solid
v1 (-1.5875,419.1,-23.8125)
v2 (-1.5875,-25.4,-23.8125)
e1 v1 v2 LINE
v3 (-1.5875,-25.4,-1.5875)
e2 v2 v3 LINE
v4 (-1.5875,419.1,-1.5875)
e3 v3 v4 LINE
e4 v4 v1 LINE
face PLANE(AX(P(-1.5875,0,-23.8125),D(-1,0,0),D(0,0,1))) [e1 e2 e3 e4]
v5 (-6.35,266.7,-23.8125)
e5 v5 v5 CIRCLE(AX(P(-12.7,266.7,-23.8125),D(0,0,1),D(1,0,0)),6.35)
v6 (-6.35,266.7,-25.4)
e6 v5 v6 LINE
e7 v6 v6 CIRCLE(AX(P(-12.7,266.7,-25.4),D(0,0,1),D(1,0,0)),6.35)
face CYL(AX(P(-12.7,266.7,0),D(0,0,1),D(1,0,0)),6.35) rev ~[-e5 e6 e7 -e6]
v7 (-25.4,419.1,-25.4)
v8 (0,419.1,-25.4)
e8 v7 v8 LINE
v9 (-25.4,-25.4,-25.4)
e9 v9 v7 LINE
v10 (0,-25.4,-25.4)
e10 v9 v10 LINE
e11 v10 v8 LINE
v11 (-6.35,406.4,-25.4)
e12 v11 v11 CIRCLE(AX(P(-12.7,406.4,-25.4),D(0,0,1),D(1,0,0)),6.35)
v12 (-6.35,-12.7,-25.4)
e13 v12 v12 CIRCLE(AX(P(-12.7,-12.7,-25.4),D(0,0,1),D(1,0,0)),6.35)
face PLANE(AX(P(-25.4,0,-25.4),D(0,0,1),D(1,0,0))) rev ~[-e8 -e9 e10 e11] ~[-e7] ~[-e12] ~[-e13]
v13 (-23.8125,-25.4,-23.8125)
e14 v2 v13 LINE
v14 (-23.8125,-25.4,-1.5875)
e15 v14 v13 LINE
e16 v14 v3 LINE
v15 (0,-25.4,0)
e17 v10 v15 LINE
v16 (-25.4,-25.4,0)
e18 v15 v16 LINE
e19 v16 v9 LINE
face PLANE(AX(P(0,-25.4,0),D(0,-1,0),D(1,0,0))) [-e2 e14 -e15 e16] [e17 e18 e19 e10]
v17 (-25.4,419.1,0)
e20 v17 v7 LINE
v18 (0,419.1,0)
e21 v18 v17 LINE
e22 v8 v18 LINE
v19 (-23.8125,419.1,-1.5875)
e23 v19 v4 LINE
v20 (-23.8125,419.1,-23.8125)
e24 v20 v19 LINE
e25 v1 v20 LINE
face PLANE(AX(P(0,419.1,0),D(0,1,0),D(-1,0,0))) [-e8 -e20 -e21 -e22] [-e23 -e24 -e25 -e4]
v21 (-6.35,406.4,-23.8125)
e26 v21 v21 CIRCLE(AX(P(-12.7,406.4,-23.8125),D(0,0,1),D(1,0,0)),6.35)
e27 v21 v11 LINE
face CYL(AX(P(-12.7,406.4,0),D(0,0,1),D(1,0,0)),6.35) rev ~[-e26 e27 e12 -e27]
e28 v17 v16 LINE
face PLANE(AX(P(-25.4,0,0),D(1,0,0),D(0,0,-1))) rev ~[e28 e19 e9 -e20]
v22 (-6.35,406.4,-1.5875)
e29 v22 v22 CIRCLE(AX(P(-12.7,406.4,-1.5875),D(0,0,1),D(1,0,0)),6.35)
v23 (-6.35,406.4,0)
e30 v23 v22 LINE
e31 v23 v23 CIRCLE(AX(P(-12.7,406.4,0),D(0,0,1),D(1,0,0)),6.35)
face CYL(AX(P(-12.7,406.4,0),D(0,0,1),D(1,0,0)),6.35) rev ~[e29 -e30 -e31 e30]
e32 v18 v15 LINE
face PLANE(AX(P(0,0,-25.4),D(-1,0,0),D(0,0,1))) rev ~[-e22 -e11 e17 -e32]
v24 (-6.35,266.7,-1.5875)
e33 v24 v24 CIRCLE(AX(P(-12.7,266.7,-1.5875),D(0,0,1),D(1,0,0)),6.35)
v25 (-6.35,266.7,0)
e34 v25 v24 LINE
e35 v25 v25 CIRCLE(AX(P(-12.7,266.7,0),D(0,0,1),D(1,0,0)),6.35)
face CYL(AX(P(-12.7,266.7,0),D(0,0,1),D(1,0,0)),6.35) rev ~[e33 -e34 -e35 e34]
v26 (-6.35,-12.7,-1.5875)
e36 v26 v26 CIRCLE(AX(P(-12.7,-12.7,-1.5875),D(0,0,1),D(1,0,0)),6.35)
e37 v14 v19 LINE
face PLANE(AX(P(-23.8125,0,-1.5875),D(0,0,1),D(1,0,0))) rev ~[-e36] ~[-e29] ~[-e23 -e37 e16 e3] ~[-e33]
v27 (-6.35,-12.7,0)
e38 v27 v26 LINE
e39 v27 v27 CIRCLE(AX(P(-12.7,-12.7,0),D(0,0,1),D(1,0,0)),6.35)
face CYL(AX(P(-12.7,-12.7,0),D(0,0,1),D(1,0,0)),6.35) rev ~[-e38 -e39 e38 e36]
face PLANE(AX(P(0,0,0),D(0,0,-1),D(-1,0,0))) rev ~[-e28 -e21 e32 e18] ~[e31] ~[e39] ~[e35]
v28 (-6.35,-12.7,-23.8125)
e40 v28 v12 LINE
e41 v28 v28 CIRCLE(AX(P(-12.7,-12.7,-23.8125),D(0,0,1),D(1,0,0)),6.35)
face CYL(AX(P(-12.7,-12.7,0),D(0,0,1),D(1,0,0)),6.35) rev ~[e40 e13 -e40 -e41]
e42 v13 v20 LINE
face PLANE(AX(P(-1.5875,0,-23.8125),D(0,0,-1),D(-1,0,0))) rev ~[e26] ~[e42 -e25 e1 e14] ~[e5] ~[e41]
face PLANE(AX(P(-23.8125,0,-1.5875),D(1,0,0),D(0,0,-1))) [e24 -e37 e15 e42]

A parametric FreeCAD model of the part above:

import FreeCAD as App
import Part
import Sketcher

V = App.Vector
Q = App.Units.Quantity


def add_polygon(sketch, points):
    """Adds a closed chain of lines whose ends are joined by coincident constraints."""
    first, n = sketch.GeometryCount, len(points)
    for a, b in zip(points, points[1:] + points[:1]):
        sketch.addGeometry(Part.LineSegment(App.Vector(*a, 0), App.Vector(*b, 0)), False)
    for i in range(n):
        sketch.addConstraint(Sketcher.Constraint("Coincident", first + i, 2, first + (i + 1) % n, 1))

doc = App.newDocument("Part")
body = doc.addObject("PartDesign::Body", "Body")

# Sketch on XZ plane
sketch1 = body.newObject("Sketcher::SketchObject", "Sketch")
sketch1.AttachmentSupport = (doc.getObject("XZ_Plane"), [""])
sketch1.MapMode = "FlatFace"
add_polygon(sketch1, [(-25, 0), (0, 0), (0, -25), (-25, -25)])  # lines 0-3
add_polygon(sketch1, [(-24, -2), (-24, -24), (-2, -24), (-2, -2)])  # lines 4-7
sketch1.addConstraint(Sketcher.Constraint("Horizontal", 0))
sketch1.addConstraint(Sketcher.Constraint("Vertical", 1))
sketch1.addConstraint(Sketcher.Constraint("Horizontal", 2))
sketch1.addConstraint(Sketcher.Constraint("Vertical", 3))
sketch1.addConstraint(Sketcher.Constraint("Vertical", 4))
sketch1.addConstraint(Sketcher.Constraint("Horizontal", 5))
sketch1.addConstraint(Sketcher.Constraint("Vertical", 6))
sketch1.addConstraint(Sketcher.Constraint("Horizontal", 7))
sketch1.addConstraint(Sketcher.Constraint("Coincident", 0, 2, -1, 1))
sketch1.addConstraint(Sketcher.Constraint("Equal", 2, 1))
sketch1.addConstraint(Sketcher.Constraint("Equal", 7, 4))
sketch1.addConstraint(Sketcher.Constraint("DistanceX", 0, 1, 0, 2, Q("1 in")))
sketch1.addConstraint(Sketcher.Constraint("DistanceX", 5, 2, -1, 1, Q("0.0625 in")))
sketch1.addConstraint(Sketcher.Constraint("DistanceY", 6, 2, -1, 1, Q("0.0625 in")))
sketch1.addConstraint(Sketcher.Constraint("DistanceX", 2, 2, 4, 2, Q("0.0625 in")))
pad1 = body.newObject("PartDesign::Pad", "Pad")
pad1.Profile = sketch1
pad1.Length = Q("16.5 in")
pad1.Reversed = True

# Sketch on XY plane
sketch2 = body.newObject("Sketcher::SketchObject", "Sketch001")
sketch2.AttachmentSupport = (doc.getObject("XY_Plane"), [""])
sketch2.MapMode = "FlatFace"
sketch2.addGeometry(Part.Circle(V(-13, 406, 0), V(0, 0, 1), 6), False)
sketch2.addConstraint(Sketcher.Constraint("Diameter", 0, Q("0.5 in")))
sketch2.addConstraint(Sketcher.Constraint("DistanceX", 0, 3, -1, 1, Q("0.5 in")))
sketch2.addConstraint(Sketcher.Constraint("DistanceY", -1, 1, 0, 3, Q("16 in")))
pocket1 = body.newObject("PartDesign::Pocket", "Pocket")
pocket1.Profile = sketch2
pocket1.Length = Q("1 in")

# Sketch on XY plane
sketch3 = body.newObject("Sketcher::SketchObject", "Sketch002")
sketch3.AttachmentSupport = (doc.getObject("XY_Plane"), [""])
sketch3.MapMode = "FlatFace"
sketch3.addGeometry(Part.Circle(V(-13, 267, 0), V(0, 0, 1), 6), False)
sketch3.addConstraint(Sketcher.Constraint("Diameter", 0, Q("0.5 in")))
sketch3.addConstraint(Sketcher.Constraint("DistanceX", 0, 3, -1, 1, Q("0.5 in")))
sketch3.addConstraint(Sketcher.Constraint("DistanceY", -1, 1, 0, 3, Q("10.5 in")))
pocket2 = body.newObject("PartDesign::Pocket", "Pocket001")
pocket2.Profile = sketch3
pocket2.Length = Q("1 in")

# Sketch on XZ plane
sketch4 = body.newObject("Sketcher::SketchObject", "Sketch003")
sketch4.AttachmentSupport = (doc.getObject("XZ_Plane"), [""])
sketch4.MapMode = "FlatFace"
add_polygon(sketch4, [(0, -25), (0, 0), (-25, 0), (-25, -25)])  # lines 0-3
add_polygon(sketch4, [(-2, -2), (-2, -24), (-24, -24), (-24, -2)])  # lines 4-7
sketch4.addConstraint(Sketcher.Constraint("Vertical", 0))
sketch4.addConstraint(Sketcher.Constraint("Horizontal", 1))
sketch4.addConstraint(Sketcher.Constraint("Vertical", 2))
sketch4.addConstraint(Sketcher.Constraint("Horizontal", 3))
sketch4.addConstraint(Sketcher.Constraint("Vertical", 4))
sketch4.addConstraint(Sketcher.Constraint("Horizontal", 5))
sketch4.addConstraint(Sketcher.Constraint("Vertical", 6))
sketch4.addConstraint(Sketcher.Constraint("Horizontal", 7))
sketch4.addConstraint(Sketcher.Constraint("Coincident", 0, 2, -1, 1))
sketch4.addConstraint(Sketcher.Constraint("Equal", 3, 0))
sketch4.addConstraint(Sketcher.Constraint("Equal", 7, 4))
sketch4.addConstraint(Sketcher.Constraint("DistanceX", 1, 2, 1, 1, Q("1 in")))
sketch4.addConstraint(Sketcher.Constraint("DistanceX", 5, 2, 5, 1, Q("0.875 in")))
sketch4.addConstraint(Sketcher.Constraint("DistanceX", 4, 2, -1, 1, Q("0.0625 in")))
sketch4.addConstraint(Sketcher.Constraint("DistanceY", 4, 2, -1, 1, Q("0.9375 in")))
pad2 = body.newObject("PartDesign::Pad", "Pad001")
pad2.Profile = sketch4
pad2.Length = Q("1 in")

# Sketch on XY plane
sketch5 = body.newObject("Sketcher::SketchObject", "Sketch004")
sketch5.AttachmentSupport = (doc.getObject("XY_Plane"), [""])
sketch5.MapMode = "FlatFace"
sketch5.addGeometry(Part.Circle(V(-13, -13, 0), V(0, 0, 1), 6), False)
sketch5.addConstraint(Sketcher.Constraint("Diameter", 0, Q("0.5 in")))
sketch5.addConstraint(Sketcher.Constraint("DistanceX", 0, 3, -1, 1, Q("0.5 in")))
sketch5.addConstraint(Sketcher.Constraint("DistanceY", 0, 3, -1, 1, Q("0.5 in")))
pocket3 = body.newObject("PartDesign::Pocket", "Pocket002")
pocket3.Profile = sketch5
pocket3.Length = Q("1 in")

doc.recompute()
